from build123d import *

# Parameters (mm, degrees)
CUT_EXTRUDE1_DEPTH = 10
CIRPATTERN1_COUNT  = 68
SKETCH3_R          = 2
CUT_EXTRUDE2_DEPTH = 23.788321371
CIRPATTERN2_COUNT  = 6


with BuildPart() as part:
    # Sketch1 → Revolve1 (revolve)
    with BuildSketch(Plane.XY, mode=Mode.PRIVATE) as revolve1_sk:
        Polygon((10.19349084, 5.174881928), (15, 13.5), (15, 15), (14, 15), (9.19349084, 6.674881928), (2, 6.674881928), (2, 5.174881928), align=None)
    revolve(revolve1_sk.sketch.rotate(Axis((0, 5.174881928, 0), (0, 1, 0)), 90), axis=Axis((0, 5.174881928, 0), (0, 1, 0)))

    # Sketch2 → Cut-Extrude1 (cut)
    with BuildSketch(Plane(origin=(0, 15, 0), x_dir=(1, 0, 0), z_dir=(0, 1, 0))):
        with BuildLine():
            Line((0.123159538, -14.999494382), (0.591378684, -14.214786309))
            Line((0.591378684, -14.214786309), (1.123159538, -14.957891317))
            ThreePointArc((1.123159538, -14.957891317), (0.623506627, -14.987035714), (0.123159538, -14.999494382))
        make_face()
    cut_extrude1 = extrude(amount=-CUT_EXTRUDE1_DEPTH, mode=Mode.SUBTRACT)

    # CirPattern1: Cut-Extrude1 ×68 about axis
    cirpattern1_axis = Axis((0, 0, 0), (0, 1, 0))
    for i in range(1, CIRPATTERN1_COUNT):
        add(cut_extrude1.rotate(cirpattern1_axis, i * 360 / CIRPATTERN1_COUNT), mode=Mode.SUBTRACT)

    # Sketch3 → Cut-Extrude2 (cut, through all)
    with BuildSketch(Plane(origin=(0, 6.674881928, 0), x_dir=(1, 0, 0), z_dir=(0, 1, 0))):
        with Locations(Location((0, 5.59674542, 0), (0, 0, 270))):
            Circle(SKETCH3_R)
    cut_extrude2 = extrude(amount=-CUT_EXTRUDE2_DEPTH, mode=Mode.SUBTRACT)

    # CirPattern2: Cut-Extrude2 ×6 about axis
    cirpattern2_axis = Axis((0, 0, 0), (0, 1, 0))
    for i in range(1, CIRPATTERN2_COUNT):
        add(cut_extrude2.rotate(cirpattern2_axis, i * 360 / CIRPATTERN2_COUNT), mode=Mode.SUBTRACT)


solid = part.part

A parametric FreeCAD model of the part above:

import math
import FreeCAD as App
import Part
import Sketcher
Q = App.Units.Quantity


def add_polygon(sketch, points):
    """Adds a closed chain of lines whose ends are joined by coincident constraints."""
    first, n = sketch.GeometryCount, len(points)
    for a, b in zip(points, points[1:] + points[:1]):
        sketch.addGeometry(Part.LineSegment(App.Vector(*a, 0), App.Vector(*b, 0)), False)
    for i in range(n):
        sketch.addConstraint(Sketcher.Constraint("Coincident", first + i, 2, first + (i + 1) % n, 1))

doc = App.newDocument("Part")
params = doc.addObject("Spreadsheet::Sheet", "Params")
for row, (alias, value) in enumerate([
    ("sketch1_width", "1 mm"),
    ("sketch1_height", "1.5 mm"),
    ("revolution_angle", "360 deg"),
    ("sketch2_radius", "14.999999 mm"),
    ("pocket1_length", "10 mm"),
    ("sketch3_diameter", "4 mm"),
], start=1):
    params.set(f"A{row}", alias)
    params.set(f"B{row}", "=" + value)
    params.setAlias(f"B{row}", alias)

body = doc.addObject("PartDesign::Body", "Body")

# Sketch on XY plane
sketch1 = doc.addObject("Sketcher::SketchObject", "Sketch")
body.addObject(sketch1)
sketch1.AttachmentSupport = (doc.XY_Plane, [""])
sketch1.MapMode = "FlatFace"
add_polygon(sketch1, [(10.2, 5.2), (15, 13.5), (15, 15), (14, 15), (9.2, 6.7), (2, 6.7), (2, 5.2)])  # lines 0-6
sketch1.addConstraint([
    Sketcher.Constraint("Vertical", 1),
    Sketcher.Constraint("Horizontal", 2),
    Sketcher.Constraint("Horizontal", 4),
    Sketcher.Constraint("Vertical", 5),
    Sketcher.Constraint("Horizontal", 6),
    Sketcher.Constraint("Parallel", 0, 3),
    Sketcher.Constraint("Equal", 1, 5),
    Sketcher.Constraint("DistanceX", 2, 2, 2, 1, Q("1 mm")),
    Sketcher.Constraint("Angle", 0, Q("60 deg")),
    Sketcher.Constraint("DistanceY", 1, 1, 1, 2, Q("1.5 mm")),
    Sketcher.Constraint("DistanceX", -1, 1, 0, 2, Q("15 mm")),
    Sketcher.Constraint("DistanceY", -1, 1, 1, 2, Q("15 mm")),
    Sketcher.Constraint("DistanceX", -1, 1, 4, 2, Q("2 mm")),
    Sketcher.Constraint("DistanceX", 4, 2, 4, 1, Q("7.193491 mm")),
])
sketch1.setExpression("Constraints[14]", "Params.sketch1_width")
sketch1.setExpression("Constraints[16]", "Params.sketch1_height")
revolution = doc.addObject("PartDesign::Revolution", "Revolution")
body.addObject(revolution)
revolution.Profile = sketch1
revolution.ReferenceAxis = (sketch1, ["V_Axis"])
revolution.setExpression("Angle", "Params.revolution_angle")

# Sketch on XZ plane
sketch2 = doc.addObject("Sketcher::SketchObject", "Sketch001")
body.addObject(sketch2)
sketch2.AttachmentSupport = (doc.XZ_Plane, [""])
sketch2.MapMode = "FlatFace"
sketch2.AttachmentOffset = App.Placement(App.Vector(0, 0, -15), App.Rotation())
sketch2.addGeometry([
    Part.LineSegment(App.Vector(0.6, 14.2, 0), App.Vector(0.1, 15, 0)),
    Part.ArcOfCircle(Part.Circle(App.Vector(0, 0, 0), App.Vector(0, 0, 1), 15), math.radians(85.71), math.radians(89.53)),
    Part.LineSegment(App.Vector(1.1, 15, 0), App.Vector(0.6, 14.2, 0)),
], False)
sketch2.addConstraint([
    Sketcher.Constraint("Coincident", 0, 2, 1, 2),
    Sketcher.Constraint("Coincident", 1, 1, 2, 1),
    Sketcher.Constraint("Coincident", 2, 2, 0, 1),
    Sketcher.Constraint("Coincident", 1, 3, -1, 1),
    Sketcher.Constraint("Equal", 0, 2),
    Sketcher.Constraint("Radius", 1, Q("14.999999 mm")),
    Sketcher.Constraint("DistanceX", 0, 2, 1, 1, Q("1 mm")),
    Sketcher.Constraint("Distance", 0, Q("0.913781 mm")),
    Sketcher.Constraint("DistanceX", -1, 1, 0, 2, Q("0.12316 mm")),
])
sketch2.setExpression("Constraints[5]", "Params.sketch2_radius")
pocket1 = doc.addObject("PartDesign::Pocket", "Pocket")
body.addObject(pocket1)
pocket1.Profile = sketch2
pocket1.setExpression("Length", "Params.pocket1_length")
pocket1.Reversed = True
doc.recompute()

polarpattern = doc.addObject("PartDesign::PolarPattern", "PolarPattern")
body.addObject(polarpattern)
polarpattern.Originals = [pocket1]
polarpattern.Axis = (doc.Y_Axis, [""])
polarpattern.Angle = 360
polarpattern.Occurrences = 68
body.Tip = polarpattern

# Sketch on XZ plane
sketch3 = doc.addObject("Sketcher::SketchObject", "Sketch002")
body.addObject(sketch3)
sketch3.AttachmentSupport = (doc.XZ_Plane, [""])
sketch3.MapMode = "FlatFace"
sketch3.AttachmentOffset = App.Placement(App.Vector(0, 0, -6.674882), App.Rotation())
sketch3.addGeometry(Part.Circle(App.Vector(0, -5.6, 0), App.Vector(0, 0, 1), 2), False)
sketch3.addConstraint([
    Sketcher.Constraint("PointOnObject", 0, 3, -2),
    Sketcher.Constraint("Diameter", 0, Q("4 mm")),
    Sketcher.Constraint("DistanceY", 0, 3, -1, 1, Q("5.596745 mm")),
])
sketch3.setExpression("Constraints[1]", "Params.sketch3_diameter")
pocket2 = doc.addObject("PartDesign::Pocket", "Pocket001")
body.addObject(pocket2)
pocket2.Profile = sketch3
pocket2.Type = "ThroughAll"
pocket2.Reversed = True
doc.recompute()

polarpattern2 = doc.addObject("PartDesign::PolarPattern", "PolarPattern001")
body.addObject(polarpattern2)
polarpattern2.Originals = [pocket2]
polarpattern2.Axis = (doc.Y_Axis, [""])
polarpattern2.Angle = 360
polarpattern2.Occurrences = 6
body.Tip = polarpattern2

doc.recompute()
